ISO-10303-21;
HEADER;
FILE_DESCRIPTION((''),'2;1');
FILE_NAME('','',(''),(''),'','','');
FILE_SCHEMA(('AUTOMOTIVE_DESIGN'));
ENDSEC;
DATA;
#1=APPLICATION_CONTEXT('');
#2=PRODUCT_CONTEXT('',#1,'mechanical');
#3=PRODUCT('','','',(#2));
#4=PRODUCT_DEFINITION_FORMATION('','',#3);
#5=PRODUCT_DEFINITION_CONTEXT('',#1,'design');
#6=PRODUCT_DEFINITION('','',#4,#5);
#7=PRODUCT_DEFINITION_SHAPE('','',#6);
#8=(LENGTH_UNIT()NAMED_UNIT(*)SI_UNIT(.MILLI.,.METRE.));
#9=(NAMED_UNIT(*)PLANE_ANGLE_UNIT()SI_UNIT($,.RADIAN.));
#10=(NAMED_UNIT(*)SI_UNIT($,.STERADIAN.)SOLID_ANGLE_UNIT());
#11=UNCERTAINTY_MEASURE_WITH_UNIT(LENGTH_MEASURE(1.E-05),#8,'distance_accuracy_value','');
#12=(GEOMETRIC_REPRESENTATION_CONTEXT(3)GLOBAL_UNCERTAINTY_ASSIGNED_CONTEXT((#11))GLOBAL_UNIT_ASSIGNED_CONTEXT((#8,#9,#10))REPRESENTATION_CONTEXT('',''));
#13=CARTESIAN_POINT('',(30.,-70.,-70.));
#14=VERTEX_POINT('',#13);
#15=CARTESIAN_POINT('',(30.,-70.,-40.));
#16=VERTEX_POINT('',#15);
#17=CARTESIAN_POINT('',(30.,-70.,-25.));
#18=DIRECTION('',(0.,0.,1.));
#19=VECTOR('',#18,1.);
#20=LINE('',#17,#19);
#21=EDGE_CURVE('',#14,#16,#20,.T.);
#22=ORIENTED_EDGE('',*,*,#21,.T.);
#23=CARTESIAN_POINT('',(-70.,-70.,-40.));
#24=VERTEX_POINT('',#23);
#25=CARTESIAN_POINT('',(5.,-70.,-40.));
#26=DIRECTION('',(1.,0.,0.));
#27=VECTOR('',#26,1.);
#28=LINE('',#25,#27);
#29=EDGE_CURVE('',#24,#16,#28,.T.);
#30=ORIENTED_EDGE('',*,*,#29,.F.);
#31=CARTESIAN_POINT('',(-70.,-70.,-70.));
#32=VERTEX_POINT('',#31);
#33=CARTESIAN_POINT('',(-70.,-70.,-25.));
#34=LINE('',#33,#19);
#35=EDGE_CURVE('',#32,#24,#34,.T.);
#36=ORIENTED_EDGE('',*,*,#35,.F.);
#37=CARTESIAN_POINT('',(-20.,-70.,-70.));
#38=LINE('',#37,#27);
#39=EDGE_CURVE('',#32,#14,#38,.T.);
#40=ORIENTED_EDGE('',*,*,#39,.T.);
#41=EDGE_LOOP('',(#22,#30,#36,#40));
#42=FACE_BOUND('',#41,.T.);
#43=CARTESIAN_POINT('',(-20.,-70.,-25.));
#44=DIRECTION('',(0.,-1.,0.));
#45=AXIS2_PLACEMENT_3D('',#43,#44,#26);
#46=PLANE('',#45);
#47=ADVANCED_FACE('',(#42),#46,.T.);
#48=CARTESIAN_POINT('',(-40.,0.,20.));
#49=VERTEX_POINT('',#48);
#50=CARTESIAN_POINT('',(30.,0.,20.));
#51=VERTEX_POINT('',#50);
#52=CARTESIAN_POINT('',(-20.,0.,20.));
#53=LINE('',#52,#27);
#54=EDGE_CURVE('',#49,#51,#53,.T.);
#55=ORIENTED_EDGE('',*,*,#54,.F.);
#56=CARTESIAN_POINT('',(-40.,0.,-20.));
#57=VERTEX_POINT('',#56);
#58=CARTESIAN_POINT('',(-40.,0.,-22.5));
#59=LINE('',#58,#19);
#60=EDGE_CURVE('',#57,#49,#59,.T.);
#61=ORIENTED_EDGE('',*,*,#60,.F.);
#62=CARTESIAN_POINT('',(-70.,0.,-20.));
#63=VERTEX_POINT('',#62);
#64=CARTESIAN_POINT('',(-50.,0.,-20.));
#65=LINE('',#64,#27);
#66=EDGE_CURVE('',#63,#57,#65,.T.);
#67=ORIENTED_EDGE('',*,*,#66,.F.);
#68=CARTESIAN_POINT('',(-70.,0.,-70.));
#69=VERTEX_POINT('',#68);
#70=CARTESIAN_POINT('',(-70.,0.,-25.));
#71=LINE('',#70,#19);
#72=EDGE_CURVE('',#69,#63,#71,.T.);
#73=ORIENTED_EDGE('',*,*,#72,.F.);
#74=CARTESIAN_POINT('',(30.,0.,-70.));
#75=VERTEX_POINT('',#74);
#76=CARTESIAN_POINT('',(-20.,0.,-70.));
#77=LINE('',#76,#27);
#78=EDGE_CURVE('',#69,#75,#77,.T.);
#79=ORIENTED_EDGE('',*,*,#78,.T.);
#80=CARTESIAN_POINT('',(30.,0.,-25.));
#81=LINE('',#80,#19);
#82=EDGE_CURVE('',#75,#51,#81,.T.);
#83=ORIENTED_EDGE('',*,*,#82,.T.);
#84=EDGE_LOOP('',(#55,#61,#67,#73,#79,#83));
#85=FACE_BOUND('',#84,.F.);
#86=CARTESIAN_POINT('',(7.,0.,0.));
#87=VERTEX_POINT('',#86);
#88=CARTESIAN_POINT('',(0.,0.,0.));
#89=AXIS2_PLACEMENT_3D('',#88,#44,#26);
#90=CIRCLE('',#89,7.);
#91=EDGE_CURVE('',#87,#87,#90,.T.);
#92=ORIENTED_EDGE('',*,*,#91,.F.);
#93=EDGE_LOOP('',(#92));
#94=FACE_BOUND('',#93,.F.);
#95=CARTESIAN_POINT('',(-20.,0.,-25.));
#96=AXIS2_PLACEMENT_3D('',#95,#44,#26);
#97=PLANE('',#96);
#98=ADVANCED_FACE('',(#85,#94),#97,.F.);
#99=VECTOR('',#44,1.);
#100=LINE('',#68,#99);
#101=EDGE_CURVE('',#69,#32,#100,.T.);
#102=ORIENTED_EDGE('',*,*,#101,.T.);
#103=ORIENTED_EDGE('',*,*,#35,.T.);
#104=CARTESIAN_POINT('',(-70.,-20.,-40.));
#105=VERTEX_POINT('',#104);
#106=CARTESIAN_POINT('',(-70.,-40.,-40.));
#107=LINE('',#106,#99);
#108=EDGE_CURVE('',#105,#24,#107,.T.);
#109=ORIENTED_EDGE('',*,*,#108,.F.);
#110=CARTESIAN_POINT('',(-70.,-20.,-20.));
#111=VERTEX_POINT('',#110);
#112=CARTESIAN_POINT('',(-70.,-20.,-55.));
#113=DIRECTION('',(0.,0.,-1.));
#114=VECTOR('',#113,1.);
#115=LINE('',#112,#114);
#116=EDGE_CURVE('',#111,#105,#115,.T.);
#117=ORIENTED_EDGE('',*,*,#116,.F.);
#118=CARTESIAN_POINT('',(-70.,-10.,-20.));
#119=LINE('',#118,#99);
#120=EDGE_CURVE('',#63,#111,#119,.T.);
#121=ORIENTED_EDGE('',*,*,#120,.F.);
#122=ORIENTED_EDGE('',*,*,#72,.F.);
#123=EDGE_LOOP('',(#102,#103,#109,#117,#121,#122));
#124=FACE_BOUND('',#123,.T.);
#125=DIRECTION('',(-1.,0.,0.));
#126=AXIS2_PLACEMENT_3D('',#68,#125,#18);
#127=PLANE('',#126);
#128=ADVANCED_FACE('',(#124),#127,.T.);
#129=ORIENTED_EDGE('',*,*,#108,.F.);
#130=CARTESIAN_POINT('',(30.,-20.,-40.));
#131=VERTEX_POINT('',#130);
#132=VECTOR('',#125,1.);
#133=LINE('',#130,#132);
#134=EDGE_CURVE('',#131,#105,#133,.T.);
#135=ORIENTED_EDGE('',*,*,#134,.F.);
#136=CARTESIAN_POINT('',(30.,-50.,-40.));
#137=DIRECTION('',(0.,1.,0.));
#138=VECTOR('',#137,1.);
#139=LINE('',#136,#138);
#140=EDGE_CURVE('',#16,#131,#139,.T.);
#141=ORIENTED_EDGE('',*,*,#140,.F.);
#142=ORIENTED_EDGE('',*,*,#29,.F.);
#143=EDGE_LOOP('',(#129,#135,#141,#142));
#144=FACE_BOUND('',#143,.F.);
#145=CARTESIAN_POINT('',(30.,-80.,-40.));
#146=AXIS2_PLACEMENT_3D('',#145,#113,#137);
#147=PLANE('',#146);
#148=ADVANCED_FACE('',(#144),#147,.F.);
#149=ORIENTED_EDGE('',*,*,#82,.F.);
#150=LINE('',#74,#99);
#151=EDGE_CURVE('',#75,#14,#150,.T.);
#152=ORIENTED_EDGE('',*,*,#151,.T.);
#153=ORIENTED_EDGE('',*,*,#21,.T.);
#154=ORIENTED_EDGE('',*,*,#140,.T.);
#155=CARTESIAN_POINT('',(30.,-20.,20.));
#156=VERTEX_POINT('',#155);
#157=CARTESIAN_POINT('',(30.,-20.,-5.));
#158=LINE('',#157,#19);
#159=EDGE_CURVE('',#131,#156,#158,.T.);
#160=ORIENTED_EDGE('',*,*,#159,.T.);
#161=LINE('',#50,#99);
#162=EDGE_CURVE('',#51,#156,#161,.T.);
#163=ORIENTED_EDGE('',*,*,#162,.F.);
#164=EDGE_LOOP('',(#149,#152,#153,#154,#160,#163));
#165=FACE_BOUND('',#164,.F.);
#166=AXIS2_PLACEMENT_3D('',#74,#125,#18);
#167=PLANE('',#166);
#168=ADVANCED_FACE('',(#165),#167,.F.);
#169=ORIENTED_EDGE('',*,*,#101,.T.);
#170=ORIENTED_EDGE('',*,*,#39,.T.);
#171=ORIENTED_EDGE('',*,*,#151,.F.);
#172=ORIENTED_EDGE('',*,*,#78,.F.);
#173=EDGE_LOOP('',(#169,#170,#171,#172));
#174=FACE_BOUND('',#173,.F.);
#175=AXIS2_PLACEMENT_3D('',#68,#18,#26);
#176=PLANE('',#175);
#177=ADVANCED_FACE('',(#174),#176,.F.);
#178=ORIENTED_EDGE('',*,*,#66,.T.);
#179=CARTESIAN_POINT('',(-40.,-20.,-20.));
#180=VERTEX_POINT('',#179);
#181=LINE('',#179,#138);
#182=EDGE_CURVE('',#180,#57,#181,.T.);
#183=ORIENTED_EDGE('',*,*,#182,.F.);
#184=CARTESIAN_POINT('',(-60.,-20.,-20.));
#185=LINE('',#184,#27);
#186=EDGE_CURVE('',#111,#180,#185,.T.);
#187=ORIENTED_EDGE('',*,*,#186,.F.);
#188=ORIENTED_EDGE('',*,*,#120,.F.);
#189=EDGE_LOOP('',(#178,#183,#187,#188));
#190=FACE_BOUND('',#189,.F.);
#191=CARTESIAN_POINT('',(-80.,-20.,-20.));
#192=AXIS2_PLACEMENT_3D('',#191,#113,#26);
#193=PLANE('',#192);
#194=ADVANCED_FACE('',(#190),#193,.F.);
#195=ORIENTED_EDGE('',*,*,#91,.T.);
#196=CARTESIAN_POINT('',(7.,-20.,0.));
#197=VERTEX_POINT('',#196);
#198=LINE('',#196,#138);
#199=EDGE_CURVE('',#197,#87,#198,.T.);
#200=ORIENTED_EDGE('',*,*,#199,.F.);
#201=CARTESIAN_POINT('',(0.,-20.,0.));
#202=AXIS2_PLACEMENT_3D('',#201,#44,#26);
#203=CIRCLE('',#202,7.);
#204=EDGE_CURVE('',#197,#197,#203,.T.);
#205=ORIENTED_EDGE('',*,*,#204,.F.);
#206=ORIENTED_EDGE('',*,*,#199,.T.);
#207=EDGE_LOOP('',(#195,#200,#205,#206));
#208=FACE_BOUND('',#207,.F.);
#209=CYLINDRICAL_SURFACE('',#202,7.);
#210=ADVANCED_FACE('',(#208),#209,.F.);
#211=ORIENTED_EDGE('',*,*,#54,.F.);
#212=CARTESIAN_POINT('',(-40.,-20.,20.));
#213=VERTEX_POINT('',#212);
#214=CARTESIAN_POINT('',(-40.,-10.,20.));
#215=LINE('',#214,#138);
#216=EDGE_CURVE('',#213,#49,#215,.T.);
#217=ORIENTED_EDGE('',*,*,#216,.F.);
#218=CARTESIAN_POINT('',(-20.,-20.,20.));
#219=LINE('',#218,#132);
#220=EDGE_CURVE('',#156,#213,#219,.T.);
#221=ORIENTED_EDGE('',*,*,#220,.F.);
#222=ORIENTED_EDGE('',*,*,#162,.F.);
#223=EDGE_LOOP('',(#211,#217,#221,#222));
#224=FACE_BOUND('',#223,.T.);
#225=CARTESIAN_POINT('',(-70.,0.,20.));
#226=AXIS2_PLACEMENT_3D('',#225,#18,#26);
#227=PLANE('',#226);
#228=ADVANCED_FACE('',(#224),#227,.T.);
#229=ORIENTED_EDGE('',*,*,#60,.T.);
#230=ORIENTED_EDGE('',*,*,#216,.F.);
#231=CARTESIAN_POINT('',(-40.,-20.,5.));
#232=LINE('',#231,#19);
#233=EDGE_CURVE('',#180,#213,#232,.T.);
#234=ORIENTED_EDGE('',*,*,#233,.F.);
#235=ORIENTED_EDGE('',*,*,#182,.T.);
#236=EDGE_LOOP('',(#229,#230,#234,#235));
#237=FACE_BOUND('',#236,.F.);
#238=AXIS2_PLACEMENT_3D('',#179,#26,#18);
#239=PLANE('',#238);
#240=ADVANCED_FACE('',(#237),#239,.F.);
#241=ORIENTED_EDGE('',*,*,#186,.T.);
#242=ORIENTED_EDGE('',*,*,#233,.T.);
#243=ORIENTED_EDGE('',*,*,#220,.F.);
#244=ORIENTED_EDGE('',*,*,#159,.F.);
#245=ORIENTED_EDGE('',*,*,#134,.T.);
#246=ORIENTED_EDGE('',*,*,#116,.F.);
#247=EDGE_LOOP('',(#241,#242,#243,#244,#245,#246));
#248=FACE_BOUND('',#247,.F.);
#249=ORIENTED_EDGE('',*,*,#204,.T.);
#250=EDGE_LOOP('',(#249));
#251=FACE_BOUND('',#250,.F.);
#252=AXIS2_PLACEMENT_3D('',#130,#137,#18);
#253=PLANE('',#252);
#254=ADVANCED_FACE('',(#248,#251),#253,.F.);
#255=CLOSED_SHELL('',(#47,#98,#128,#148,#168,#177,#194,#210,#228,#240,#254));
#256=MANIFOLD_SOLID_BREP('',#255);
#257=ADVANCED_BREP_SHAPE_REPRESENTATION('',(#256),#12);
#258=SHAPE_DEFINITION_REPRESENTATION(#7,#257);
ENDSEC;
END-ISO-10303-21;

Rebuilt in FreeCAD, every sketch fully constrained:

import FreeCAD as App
import Part
import Sketcher

V = App.Vector
Q = App.Units.Quantity


def add_polygon(sketch, points):
    """Adds a closed chain of lines whose ends are joined by coincident constraints."""
    first, n = sketch.GeometryCount, len(points)
    for a, b in zip(points, points[1:] + points[:1]):
        sketch.addGeometry(Part.LineSegment(App.Vector(*a, 0), App.Vector(*b, 0)), False)
    for i in range(n):
        sketch.addConstraint(Sketcher.Constraint("Coincident", first + i, 2, first + (i + 1) % n, 1))

doc = App.newDocument("Part")
body = doc.addObject("PartDesign::Body", "Body")

# Sketch on XZ plane
sketch1 = body.newObject("Sketcher::SketchObject", "Sketch")
sketch1.AttachmentSupport = (doc.getObject("XZ_Plane"), [""])
sketch1.MapMode = "FlatFace"
add_polygon(sketch1, [(-70, 20), (-70, -70), (30, -70), (30, 20)])  # lines 0-3
sketch1.addConstraint([
    Sketcher.Constraint("Vertical", 0),
    Sketcher.Constraint("Horizontal", 1),
    Sketcher.Constraint("Vertical", 2),
    Sketcher.Constraint("Horizontal", 3),
    Sketcher.Constraint("DistanceX", 1, 1, 1, 2, Q("100 mm")),
    Sketcher.Constraint("DistanceY", 0, 2, 0, 1, Q("90 mm")),
    Sketcher.Constraint("DistanceX", 0, 2, -1, 1, Q("70 mm")),
    Sketcher.Constraint("DistanceY", 0, 2, -1, 1, Q("70 mm")),
])
pad1 = body.newObject("PartDesign::Pad", "Pad")
pad1.Profile = sketch1
pad1.Length = 70

# Sketch on YZ plane
sketch2 = body.newObject("Sketcher::SketchObject", "Sketch001")
sketch2.AttachmentSupport = (doc.getObject("YZ_Plane"), [""])
sketch2.MapMode = "FlatFace"
sketch2.AttachmentOffset = App.Placement(V(0, 0, 30), App.Rotation())
add_polygon(sketch2, [(-80, 30), (-80, -40), (-20, -40), (-20, 30)])  # lines 0-3
sketch2.addConstraint([
    Sketcher.Constraint("Vertical", 0),
    Sketcher.Constraint("Horizontal", 1),
    Sketcher.Constraint("Vertical", 2),
    Sketcher.Constraint("Horizontal", 3),
    Sketcher.Constraint("DistanceX", 1, 1, 1, 2, Q("60 mm")),
    Sketcher.Constraint("DistanceY", 0, 2, 0, 1, Q("70 mm")),
    Sketcher.Constraint("DistanceX", 0, 2, -1, 1, Q("80 mm")),
    Sketcher.Constraint("DistanceY", 0, 2, -1, 1, Q("40 mm")),
])
pocket1 = body.newObject("PartDesign::Pocket", "Pocket")
pocket1.Profile = sketch2
pocket1.Type = "ThroughAll"

# Sketch on XZ plane
sketch3 = body.newObject("Sketcher::SketchObject", "Sketch002")
sketch3.AttachmentSupport = (doc.getObject("XZ_Plane"), [""])
sketch3.MapMode = "FlatFace"
sketch3.AttachmentOffset = App.Placement(V(0, 0, 20), App.Rotation())
add_polygon(sketch3, [(-80, 30), (-80, -20), (-40, -20), (-40, 30)])  # lines 0-3
sketch3.addConstraint([
    Sketcher.Constraint("Vertical", 0),
    Sketcher.Constraint("Horizontal", 1),
    Sketcher.Constraint("Vertical", 2),
    Sketcher.Constraint("Horizontal", 3),
    Sketcher.Constraint("DistanceX", 1, 1, 1, 2, Q("40 mm")),
    Sketcher.Constraint("DistanceY", 0, 2, 0, 1, Q("50 mm")),
    Sketcher.Constraint("DistanceX", 0, 2, -1, 1, Q("80 mm")),
    Sketcher.Constraint("DistanceY", 0, 2, -1, 1, Q("20 mm")),
])
pocket2 = body.newObject("PartDesign::Pocket", "Pocket001")
pocket2.Profile = sketch3
pocket2.Type = "ThroughAll"

# Sketch on XZ plane
sketch4 = body.newObject("Sketcher::SketchObject", "Sketch003")
sketch4.AttachmentSupport = (doc.getObject("XZ_Plane"), [""])
sketch4.MapMode = "FlatFace"
sketch4.AttachmentOffset = App.Placement(V(0, 0, 20), App.Rotation())
sketch4.addGeometry(Part.Circle(V(0, 0, 0), V(0, 0, 1), 7), False)
sketch4.addConstraint([
    Sketcher.Constraint("Coincident", 0, 3, -1, 1),
    Sketcher.Constraint("Diameter", 0, Q("14 mm")),
])
pocket3 = body.newObject("PartDesign::Pocket", "Pocket002")
pocket3.Profile = sketch4
pocket3.Type = "ThroughAll"

doc.recompute()
